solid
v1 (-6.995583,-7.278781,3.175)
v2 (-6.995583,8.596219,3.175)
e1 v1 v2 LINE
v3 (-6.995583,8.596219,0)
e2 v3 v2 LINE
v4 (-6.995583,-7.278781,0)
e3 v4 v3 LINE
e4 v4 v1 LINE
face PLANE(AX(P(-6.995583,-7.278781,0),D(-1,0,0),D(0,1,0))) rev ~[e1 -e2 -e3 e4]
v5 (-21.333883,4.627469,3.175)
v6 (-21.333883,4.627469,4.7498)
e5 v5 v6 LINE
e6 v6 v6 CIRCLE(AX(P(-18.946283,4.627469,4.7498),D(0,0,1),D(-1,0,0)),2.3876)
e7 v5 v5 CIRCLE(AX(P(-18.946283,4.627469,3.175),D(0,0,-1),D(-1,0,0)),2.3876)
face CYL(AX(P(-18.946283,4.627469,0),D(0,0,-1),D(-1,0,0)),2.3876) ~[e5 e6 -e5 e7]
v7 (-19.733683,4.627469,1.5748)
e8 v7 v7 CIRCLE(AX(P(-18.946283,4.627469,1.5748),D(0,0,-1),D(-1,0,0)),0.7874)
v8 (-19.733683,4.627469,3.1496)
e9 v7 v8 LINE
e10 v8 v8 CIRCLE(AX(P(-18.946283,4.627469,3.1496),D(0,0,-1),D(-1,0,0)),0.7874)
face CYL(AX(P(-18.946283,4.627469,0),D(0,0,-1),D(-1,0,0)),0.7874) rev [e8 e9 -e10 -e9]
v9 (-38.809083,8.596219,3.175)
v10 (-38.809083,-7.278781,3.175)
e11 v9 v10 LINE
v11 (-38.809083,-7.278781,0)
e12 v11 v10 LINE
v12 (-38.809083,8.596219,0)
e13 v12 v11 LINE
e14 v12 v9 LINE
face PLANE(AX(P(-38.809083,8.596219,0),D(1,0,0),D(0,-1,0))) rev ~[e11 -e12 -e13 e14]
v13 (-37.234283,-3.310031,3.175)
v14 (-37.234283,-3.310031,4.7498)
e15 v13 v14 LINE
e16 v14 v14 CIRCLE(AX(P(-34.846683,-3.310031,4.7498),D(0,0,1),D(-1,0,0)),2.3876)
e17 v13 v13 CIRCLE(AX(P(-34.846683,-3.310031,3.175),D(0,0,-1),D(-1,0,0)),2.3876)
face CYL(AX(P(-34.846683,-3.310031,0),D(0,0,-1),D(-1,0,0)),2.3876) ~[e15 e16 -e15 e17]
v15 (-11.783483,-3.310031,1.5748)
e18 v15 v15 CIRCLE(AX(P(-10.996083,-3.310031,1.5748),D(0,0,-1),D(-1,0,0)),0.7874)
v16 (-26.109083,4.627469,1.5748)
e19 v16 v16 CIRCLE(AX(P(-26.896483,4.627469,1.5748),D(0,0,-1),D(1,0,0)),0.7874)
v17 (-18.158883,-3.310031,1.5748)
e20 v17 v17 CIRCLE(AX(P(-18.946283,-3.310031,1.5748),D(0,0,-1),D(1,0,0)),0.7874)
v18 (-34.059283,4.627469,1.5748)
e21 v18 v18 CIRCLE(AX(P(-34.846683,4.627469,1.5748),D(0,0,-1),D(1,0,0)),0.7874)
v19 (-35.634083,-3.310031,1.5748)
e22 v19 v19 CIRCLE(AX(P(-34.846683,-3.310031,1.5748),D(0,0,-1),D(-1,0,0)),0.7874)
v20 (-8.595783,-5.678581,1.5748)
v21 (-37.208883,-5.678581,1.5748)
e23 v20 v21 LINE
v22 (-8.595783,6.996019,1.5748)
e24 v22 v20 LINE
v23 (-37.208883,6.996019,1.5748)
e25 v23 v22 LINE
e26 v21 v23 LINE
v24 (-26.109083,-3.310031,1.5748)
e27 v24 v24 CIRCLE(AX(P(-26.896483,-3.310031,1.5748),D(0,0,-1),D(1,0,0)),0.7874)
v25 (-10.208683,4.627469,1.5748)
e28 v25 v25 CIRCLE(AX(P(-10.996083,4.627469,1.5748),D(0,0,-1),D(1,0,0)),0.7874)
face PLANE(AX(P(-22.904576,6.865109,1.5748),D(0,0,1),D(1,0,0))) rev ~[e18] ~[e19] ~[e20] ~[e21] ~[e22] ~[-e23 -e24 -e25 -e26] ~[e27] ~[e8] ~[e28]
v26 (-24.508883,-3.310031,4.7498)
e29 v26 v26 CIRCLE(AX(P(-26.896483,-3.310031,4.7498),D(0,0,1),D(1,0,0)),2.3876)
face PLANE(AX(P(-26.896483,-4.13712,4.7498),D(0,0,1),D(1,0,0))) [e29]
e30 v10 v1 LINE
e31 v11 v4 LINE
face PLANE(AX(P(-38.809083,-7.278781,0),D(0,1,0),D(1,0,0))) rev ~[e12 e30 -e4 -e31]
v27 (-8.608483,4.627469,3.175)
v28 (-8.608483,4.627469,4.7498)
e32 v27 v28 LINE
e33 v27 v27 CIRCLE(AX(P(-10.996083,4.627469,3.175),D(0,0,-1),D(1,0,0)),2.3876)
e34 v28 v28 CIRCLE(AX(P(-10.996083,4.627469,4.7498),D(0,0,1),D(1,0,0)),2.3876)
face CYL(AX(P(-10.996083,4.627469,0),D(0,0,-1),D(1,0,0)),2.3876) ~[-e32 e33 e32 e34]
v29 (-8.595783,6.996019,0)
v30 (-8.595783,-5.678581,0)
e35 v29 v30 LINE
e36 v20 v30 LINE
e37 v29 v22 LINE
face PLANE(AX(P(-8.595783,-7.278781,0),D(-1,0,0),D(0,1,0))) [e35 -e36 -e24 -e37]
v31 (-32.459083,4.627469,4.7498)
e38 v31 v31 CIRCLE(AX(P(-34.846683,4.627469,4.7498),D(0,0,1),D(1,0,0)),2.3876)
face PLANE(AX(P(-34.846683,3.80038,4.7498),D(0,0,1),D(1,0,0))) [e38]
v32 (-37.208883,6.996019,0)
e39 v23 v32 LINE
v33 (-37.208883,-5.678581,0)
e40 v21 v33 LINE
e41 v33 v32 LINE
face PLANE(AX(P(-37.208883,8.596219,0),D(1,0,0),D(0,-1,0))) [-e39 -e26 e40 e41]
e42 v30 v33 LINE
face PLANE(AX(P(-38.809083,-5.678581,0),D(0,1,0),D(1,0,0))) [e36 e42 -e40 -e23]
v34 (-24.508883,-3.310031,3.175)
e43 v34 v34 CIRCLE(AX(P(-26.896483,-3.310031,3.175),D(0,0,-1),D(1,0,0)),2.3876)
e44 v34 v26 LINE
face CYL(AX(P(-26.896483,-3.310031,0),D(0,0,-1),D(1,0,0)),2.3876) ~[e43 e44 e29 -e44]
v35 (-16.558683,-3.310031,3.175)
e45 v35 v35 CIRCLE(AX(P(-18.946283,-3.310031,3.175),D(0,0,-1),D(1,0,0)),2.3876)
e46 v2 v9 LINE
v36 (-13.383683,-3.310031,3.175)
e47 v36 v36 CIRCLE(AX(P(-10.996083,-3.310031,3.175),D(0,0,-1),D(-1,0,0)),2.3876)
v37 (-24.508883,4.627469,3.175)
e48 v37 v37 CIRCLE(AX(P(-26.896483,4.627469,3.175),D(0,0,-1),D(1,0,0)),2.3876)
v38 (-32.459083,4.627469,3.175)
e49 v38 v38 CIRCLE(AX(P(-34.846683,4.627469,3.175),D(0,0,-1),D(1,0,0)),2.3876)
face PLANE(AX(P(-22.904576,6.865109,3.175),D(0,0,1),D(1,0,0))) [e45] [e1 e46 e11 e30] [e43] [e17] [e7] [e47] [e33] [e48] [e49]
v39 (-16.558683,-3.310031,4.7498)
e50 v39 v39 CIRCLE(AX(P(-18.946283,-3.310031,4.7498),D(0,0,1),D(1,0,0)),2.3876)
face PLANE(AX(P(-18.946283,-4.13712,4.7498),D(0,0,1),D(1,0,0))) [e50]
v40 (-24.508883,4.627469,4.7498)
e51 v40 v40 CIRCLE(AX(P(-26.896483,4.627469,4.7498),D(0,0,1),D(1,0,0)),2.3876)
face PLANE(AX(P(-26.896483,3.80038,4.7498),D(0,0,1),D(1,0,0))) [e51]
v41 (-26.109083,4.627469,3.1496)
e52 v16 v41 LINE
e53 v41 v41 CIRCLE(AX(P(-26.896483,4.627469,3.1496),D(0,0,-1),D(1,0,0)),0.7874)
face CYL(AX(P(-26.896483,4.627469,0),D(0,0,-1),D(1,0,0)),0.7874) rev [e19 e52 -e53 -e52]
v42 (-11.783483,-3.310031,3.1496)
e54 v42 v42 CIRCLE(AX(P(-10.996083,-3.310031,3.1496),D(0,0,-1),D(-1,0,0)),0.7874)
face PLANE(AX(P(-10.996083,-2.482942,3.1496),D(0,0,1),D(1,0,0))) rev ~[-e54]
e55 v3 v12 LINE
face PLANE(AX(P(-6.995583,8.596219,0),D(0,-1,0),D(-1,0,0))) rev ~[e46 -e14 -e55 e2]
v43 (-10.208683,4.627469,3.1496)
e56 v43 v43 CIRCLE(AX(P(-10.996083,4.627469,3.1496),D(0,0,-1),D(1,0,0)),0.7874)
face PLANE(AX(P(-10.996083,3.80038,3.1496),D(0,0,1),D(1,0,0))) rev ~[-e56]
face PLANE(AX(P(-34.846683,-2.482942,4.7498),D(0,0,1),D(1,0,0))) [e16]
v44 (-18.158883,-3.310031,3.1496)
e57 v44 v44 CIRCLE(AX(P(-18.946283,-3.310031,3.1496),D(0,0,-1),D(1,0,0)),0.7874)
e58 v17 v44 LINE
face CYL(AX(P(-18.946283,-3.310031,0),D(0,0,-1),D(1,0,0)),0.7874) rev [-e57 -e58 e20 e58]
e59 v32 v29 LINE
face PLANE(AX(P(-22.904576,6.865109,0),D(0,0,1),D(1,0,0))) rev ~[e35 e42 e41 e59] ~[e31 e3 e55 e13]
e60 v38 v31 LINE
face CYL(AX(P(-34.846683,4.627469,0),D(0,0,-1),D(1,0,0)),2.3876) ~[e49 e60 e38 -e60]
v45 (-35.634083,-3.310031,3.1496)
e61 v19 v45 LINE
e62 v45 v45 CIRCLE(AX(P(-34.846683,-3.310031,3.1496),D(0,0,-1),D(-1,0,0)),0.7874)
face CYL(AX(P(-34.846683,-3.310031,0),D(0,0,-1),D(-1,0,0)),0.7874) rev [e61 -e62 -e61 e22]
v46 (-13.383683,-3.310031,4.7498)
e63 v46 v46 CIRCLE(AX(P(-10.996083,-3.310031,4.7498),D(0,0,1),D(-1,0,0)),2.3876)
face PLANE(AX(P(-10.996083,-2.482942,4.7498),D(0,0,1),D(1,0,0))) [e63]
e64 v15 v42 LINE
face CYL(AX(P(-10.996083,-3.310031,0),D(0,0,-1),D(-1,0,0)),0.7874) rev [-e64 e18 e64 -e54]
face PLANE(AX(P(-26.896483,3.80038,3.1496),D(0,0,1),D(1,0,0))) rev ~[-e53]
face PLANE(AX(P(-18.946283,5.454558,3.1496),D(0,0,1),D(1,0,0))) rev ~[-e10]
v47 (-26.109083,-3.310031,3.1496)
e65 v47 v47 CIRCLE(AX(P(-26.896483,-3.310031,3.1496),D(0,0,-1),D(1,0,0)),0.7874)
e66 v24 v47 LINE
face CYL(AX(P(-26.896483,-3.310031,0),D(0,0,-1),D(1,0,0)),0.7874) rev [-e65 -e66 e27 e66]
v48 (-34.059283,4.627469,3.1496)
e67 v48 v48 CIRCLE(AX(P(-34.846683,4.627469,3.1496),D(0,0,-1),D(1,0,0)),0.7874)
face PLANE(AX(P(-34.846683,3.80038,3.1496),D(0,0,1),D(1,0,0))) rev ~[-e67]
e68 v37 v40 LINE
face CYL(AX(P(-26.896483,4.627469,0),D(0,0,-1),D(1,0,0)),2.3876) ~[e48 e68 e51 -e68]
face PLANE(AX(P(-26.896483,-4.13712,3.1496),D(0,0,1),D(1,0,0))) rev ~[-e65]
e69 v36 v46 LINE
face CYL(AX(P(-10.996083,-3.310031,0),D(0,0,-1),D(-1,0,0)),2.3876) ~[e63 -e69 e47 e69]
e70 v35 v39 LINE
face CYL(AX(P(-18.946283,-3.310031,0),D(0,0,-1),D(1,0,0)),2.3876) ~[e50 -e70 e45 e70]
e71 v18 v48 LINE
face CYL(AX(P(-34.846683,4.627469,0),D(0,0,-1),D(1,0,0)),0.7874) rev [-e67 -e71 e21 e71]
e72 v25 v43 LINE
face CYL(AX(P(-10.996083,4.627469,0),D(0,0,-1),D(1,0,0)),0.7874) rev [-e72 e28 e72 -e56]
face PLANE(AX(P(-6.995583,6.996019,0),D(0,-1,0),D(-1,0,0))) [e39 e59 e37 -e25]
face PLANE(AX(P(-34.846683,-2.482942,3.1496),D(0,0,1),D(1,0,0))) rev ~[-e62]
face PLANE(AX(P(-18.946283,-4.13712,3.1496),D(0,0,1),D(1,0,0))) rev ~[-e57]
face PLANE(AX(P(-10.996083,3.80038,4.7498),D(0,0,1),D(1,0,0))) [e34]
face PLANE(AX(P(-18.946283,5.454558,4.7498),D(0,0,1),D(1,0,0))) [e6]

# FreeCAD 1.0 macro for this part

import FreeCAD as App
import Part
import Sketcher
Q = App.Units.Quantity


def faces_at(feature, points):
    """Names of the faces that lie closest to the given points."""
    faces = feature.Shape.Faces
    near = lambda p: min(range(len(faces)), key=lambda i: faces[i].distToShape(Part.Vertex(*p))[0])
    return sorted({f"Face{near(p) + 1}" for p in points})

doc = App.newDocument("Part")
body = doc.addObject("PartDesign::Body", "Body")

# Sketch on XY plane
sketch1 = doc.addObject("Sketcher::SketchObject", "Sketch")
body.addObject(sketch1)
sketch1.AttachmentSupport = (doc.XY_Plane, [""])
sketch1.MapMode = "FlatFace"
sketch1.addGeometry([
    Part.LineSegment(App.Vector(-7, 8.6, 0), App.Vector(-38.8, 8.6, 0)),  # 0
    Part.LineSegment(App.Vector(-38.8, 8.6, 0), App.Vector(-38.8, -7.3, 0)),  # 1
    Part.LineSegment(App.Vector(-38.8, -7.3, 0), App.Vector(-7, -7.3, 0)),  # 2
    Part.LineSegment(App.Vector(-7, -7.3, 0), App.Vector(-7, 8.6, 0)),  # 3
    Part.Circle(App.Vector(-34.8, 4.6, 0), App.Vector(0, 0, 1), 2.4),  # 4
    Part.Circle(App.Vector(-26.9, 4.6, 0), App.Vector(0, 0, 1), 2.4),  # 5
    Part.Circle(App.Vector(-18.9, 4.6, 0), App.Vector(0, 0, 1), 2.4),  # 6
    Part.Circle(App.Vector(-11, 4.6, 0), App.Vector(0, 0, 1), 2.4),  # 7
    Part.Circle(App.Vector(-34.8, -3.3, 0), App.Vector(0, 0, 1), 2.4),  # 8
    Part.Circle(App.Vector(-26.9, -3.3, 0), App.Vector(0, 0, 1), 2.4),  # 9
    Part.Circle(App.Vector(-18.9, -3.3, 0), App.Vector(0, 0, 1), 2.4),  # 10
    Part.Circle(App.Vector(-11, -3.3, 0), App.Vector(0, 0, 1), 2.4),  # 11
], False)
sketch1.addConstraint([
    Sketcher.Constraint("Coincident", 0, 2, 1, 1),
    Sketcher.Constraint("Coincident", 1, 2, 2, 1),
    Sketcher.Constraint("Coincident", 2, 2, 3, 1),
    Sketcher.Constraint("Coincident", 3, 2, 0, 1),
    Sketcher.Constraint("Horizontal", 0),
    Sketcher.Constraint("Vertical", 1),
    Sketcher.Constraint("Horizontal", 2),
    Sketcher.Constraint("Vertical", 3),
    Sketcher.Constraint("Equal", 4, 5),
    Sketcher.Constraint("Equal", 5, 6),
    Sketcher.Constraint("Equal", 6, 7),
    Sketcher.Constraint("Equal", 7, 8),
    Sketcher.Constraint("Equal", 8, 9),
    Sketcher.Constraint("Equal", 9, 10),
    Sketcher.Constraint("Equal", 10, 11),
    Sketcher.Constraint("Horizontal", 4, 3, 5, 3),
    Sketcher.Constraint("Horizontal", 5, 3, 6, 3),
    Sketcher.Constraint("Horizontal", 6, 3, 7, 3),
    Sketcher.Constraint("Horizontal", 8, 3, 9, 3),
    Sketcher.Constraint("Horizontal", 9, 3, 10, 3),
    Sketcher.Constraint("Horizontal", 10, 3, 11, 3),
    Sketcher.Constraint("Vertical", 4, 3, 8, 3),
    Sketcher.Constraint("Vertical", 5, 3, 9, 3),
    Sketcher.Constraint("Vertical", 6, 3, 10, 3),
    Sketcher.Constraint("Vertical", 7, 3, 11, 3),
    Sketcher.Constraint("Diameter", 4, Q("0.188 in")),
    Sketcher.Constraint("DistanceY", 1, 2, 1, 1, Q("0.625 in")),
    Sketcher.Constraint("DistanceX", 0, 2, 0, 1, Q("1.2525 in")),
    Sketcher.Constraint("DistanceX", 4, 3, 5, 3, Q("0.313 in")),
    Sketcher.Constraint("DistanceX", 5, 3, 6, 3, Q("0.313 in")),
    Sketcher.Constraint("DistanceX", 6, 3, 7, 3, Q("0.313 in")),
    Sketcher.Constraint("DistanceY", 8, 3, 4, 3, Q("0.3125 in")),
    Sketcher.Constraint("DistanceX", 0, 2, 4, 3, Q("0.156 in")),
    Sketcher.Constraint("DistanceY", 4, 3, 0, 2, Q("0.15625 in")),
    Sketcher.Constraint("DistanceY", -1, 1, 4, 3, Q("4.627469 mm")),
    Sketcher.Constraint("DistanceX", 4, 3, -1, 1, Q("34.846683 mm")),
])
pad1 = doc.addObject("PartDesign::Pad", "Pad")
body.addObject(pad1)
pad1.Profile = sketch1
pad1.Length = Q("0.125 in")

# Sketch on XY plane
sketch2 = doc.addObject("Sketcher::SketchObject", "Sketch001")
body.addObject(sketch2)
sketch2.AttachmentSupport = (doc.XY_Plane, [""])
sketch2.MapMode = "FlatFace"
sketch2.addGeometry([
    Part.Circle(App.Vector(-34.8, 4.6, 0), App.Vector(0, 0, 1), 2.4),  # 0
    Part.Circle(App.Vector(-34.8, -3.3, 0), App.Vector(0, 0, 1), 2.4),  # 1
    Part.Circle(App.Vector(-26.9, -3.3, 0), App.Vector(0, 0, 1), 2.4),  # 2
    Part.Circle(App.Vector(-26.9, 4.6, 0), App.Vector(0, 0, 1), 2.4),  # 3
    Part.Circle(App.Vector(-18.9, -3.3, 0), App.Vector(0, 0, 1), 2.4),  # 4
    Part.Circle(App.Vector(-18.9, 4.6, 0), App.Vector(0, 0, 1), 2.4),  # 5
    Part.Circle(App.Vector(-11, -3.3, 0), App.Vector(0, 0, 1), 2.4),  # 6
    Part.Circle(App.Vector(-11, 4.6, 0), App.Vector(0, 0, 1), 2.4),  # 7
], False)
sketch2.addConstraint([
    Sketcher.Constraint("Equal", 0, 1),
    Sketcher.Constraint("Equal", 1, 2),
    Sketcher.Constraint("Equal", 2, 3),
    Sketcher.Constraint("Equal", 3, 4),
    Sketcher.Constraint("Equal", 4, 5),
    Sketcher.Constraint("Equal", 5, 6),
    Sketcher.Constraint("Equal", 6, 7),
    Sketcher.Constraint("Horizontal", 1, 3, 2, 3),
    Sketcher.Constraint("Horizontal", 0, 3, 3, 3),
    Sketcher.Constraint("Horizontal", 2, 3, 4, 3),
    Sketcher.Constraint("Horizontal", 3, 3, 5, 3),
    Sketcher.Constraint("Horizontal", 4, 3, 6, 3),
    Sketcher.Constraint("Horizontal", 5, 3, 7, 3),
    Sketcher.Constraint("Vertical", 0, 3, 1, 3),
    Sketcher.Constraint("Vertical", 2, 3, 3, 3),
    Sketcher.Constraint("Vertical", 4, 3, 5, 3),
    Sketcher.Constraint("Vertical", 6, 3, 7, 3),
    Sketcher.Constraint("Diameter", 0, Q("0.188 in")),
    Sketcher.Constraint("DistanceY", 1, 3, 0, 3, Q("0.3125 in")),
    Sketcher.Constraint("DistanceX", 1, 3, 2, 3, Q("0.313 in")),
    Sketcher.Constraint("DistanceX", 2, 3, 4, 3, Q("0.313 in")),
    Sketcher.Constraint("DistanceX", 4, 3, 6, 3, Q("0.313 in")),
    Sketcher.Constraint("DistanceY", -1, 1, 0, 3, Q("4.627469 mm")),
    Sketcher.Constraint("DistanceX", 0, 3, -1, 1, Q("34.846683 mm")),
])
pad2 = doc.addObject("PartDesign::Pad", "Pad001")
body.addObject(pad2)
pad2.Profile = sketch2
pad2.Length = Q("0.187 in")
doc.recompute()

thickness = doc.addObject("PartDesign::Thickness", "Thickness")
body.addObject(thickness)
thickness.Base = (pad2, faces_at(pad2, [(-22.902, 0.659, 0)]))
thickness.Value = Q("0.063 in")
thickness.Reversed = True
thickness.Join = "Intersection"

doc.recompute()
